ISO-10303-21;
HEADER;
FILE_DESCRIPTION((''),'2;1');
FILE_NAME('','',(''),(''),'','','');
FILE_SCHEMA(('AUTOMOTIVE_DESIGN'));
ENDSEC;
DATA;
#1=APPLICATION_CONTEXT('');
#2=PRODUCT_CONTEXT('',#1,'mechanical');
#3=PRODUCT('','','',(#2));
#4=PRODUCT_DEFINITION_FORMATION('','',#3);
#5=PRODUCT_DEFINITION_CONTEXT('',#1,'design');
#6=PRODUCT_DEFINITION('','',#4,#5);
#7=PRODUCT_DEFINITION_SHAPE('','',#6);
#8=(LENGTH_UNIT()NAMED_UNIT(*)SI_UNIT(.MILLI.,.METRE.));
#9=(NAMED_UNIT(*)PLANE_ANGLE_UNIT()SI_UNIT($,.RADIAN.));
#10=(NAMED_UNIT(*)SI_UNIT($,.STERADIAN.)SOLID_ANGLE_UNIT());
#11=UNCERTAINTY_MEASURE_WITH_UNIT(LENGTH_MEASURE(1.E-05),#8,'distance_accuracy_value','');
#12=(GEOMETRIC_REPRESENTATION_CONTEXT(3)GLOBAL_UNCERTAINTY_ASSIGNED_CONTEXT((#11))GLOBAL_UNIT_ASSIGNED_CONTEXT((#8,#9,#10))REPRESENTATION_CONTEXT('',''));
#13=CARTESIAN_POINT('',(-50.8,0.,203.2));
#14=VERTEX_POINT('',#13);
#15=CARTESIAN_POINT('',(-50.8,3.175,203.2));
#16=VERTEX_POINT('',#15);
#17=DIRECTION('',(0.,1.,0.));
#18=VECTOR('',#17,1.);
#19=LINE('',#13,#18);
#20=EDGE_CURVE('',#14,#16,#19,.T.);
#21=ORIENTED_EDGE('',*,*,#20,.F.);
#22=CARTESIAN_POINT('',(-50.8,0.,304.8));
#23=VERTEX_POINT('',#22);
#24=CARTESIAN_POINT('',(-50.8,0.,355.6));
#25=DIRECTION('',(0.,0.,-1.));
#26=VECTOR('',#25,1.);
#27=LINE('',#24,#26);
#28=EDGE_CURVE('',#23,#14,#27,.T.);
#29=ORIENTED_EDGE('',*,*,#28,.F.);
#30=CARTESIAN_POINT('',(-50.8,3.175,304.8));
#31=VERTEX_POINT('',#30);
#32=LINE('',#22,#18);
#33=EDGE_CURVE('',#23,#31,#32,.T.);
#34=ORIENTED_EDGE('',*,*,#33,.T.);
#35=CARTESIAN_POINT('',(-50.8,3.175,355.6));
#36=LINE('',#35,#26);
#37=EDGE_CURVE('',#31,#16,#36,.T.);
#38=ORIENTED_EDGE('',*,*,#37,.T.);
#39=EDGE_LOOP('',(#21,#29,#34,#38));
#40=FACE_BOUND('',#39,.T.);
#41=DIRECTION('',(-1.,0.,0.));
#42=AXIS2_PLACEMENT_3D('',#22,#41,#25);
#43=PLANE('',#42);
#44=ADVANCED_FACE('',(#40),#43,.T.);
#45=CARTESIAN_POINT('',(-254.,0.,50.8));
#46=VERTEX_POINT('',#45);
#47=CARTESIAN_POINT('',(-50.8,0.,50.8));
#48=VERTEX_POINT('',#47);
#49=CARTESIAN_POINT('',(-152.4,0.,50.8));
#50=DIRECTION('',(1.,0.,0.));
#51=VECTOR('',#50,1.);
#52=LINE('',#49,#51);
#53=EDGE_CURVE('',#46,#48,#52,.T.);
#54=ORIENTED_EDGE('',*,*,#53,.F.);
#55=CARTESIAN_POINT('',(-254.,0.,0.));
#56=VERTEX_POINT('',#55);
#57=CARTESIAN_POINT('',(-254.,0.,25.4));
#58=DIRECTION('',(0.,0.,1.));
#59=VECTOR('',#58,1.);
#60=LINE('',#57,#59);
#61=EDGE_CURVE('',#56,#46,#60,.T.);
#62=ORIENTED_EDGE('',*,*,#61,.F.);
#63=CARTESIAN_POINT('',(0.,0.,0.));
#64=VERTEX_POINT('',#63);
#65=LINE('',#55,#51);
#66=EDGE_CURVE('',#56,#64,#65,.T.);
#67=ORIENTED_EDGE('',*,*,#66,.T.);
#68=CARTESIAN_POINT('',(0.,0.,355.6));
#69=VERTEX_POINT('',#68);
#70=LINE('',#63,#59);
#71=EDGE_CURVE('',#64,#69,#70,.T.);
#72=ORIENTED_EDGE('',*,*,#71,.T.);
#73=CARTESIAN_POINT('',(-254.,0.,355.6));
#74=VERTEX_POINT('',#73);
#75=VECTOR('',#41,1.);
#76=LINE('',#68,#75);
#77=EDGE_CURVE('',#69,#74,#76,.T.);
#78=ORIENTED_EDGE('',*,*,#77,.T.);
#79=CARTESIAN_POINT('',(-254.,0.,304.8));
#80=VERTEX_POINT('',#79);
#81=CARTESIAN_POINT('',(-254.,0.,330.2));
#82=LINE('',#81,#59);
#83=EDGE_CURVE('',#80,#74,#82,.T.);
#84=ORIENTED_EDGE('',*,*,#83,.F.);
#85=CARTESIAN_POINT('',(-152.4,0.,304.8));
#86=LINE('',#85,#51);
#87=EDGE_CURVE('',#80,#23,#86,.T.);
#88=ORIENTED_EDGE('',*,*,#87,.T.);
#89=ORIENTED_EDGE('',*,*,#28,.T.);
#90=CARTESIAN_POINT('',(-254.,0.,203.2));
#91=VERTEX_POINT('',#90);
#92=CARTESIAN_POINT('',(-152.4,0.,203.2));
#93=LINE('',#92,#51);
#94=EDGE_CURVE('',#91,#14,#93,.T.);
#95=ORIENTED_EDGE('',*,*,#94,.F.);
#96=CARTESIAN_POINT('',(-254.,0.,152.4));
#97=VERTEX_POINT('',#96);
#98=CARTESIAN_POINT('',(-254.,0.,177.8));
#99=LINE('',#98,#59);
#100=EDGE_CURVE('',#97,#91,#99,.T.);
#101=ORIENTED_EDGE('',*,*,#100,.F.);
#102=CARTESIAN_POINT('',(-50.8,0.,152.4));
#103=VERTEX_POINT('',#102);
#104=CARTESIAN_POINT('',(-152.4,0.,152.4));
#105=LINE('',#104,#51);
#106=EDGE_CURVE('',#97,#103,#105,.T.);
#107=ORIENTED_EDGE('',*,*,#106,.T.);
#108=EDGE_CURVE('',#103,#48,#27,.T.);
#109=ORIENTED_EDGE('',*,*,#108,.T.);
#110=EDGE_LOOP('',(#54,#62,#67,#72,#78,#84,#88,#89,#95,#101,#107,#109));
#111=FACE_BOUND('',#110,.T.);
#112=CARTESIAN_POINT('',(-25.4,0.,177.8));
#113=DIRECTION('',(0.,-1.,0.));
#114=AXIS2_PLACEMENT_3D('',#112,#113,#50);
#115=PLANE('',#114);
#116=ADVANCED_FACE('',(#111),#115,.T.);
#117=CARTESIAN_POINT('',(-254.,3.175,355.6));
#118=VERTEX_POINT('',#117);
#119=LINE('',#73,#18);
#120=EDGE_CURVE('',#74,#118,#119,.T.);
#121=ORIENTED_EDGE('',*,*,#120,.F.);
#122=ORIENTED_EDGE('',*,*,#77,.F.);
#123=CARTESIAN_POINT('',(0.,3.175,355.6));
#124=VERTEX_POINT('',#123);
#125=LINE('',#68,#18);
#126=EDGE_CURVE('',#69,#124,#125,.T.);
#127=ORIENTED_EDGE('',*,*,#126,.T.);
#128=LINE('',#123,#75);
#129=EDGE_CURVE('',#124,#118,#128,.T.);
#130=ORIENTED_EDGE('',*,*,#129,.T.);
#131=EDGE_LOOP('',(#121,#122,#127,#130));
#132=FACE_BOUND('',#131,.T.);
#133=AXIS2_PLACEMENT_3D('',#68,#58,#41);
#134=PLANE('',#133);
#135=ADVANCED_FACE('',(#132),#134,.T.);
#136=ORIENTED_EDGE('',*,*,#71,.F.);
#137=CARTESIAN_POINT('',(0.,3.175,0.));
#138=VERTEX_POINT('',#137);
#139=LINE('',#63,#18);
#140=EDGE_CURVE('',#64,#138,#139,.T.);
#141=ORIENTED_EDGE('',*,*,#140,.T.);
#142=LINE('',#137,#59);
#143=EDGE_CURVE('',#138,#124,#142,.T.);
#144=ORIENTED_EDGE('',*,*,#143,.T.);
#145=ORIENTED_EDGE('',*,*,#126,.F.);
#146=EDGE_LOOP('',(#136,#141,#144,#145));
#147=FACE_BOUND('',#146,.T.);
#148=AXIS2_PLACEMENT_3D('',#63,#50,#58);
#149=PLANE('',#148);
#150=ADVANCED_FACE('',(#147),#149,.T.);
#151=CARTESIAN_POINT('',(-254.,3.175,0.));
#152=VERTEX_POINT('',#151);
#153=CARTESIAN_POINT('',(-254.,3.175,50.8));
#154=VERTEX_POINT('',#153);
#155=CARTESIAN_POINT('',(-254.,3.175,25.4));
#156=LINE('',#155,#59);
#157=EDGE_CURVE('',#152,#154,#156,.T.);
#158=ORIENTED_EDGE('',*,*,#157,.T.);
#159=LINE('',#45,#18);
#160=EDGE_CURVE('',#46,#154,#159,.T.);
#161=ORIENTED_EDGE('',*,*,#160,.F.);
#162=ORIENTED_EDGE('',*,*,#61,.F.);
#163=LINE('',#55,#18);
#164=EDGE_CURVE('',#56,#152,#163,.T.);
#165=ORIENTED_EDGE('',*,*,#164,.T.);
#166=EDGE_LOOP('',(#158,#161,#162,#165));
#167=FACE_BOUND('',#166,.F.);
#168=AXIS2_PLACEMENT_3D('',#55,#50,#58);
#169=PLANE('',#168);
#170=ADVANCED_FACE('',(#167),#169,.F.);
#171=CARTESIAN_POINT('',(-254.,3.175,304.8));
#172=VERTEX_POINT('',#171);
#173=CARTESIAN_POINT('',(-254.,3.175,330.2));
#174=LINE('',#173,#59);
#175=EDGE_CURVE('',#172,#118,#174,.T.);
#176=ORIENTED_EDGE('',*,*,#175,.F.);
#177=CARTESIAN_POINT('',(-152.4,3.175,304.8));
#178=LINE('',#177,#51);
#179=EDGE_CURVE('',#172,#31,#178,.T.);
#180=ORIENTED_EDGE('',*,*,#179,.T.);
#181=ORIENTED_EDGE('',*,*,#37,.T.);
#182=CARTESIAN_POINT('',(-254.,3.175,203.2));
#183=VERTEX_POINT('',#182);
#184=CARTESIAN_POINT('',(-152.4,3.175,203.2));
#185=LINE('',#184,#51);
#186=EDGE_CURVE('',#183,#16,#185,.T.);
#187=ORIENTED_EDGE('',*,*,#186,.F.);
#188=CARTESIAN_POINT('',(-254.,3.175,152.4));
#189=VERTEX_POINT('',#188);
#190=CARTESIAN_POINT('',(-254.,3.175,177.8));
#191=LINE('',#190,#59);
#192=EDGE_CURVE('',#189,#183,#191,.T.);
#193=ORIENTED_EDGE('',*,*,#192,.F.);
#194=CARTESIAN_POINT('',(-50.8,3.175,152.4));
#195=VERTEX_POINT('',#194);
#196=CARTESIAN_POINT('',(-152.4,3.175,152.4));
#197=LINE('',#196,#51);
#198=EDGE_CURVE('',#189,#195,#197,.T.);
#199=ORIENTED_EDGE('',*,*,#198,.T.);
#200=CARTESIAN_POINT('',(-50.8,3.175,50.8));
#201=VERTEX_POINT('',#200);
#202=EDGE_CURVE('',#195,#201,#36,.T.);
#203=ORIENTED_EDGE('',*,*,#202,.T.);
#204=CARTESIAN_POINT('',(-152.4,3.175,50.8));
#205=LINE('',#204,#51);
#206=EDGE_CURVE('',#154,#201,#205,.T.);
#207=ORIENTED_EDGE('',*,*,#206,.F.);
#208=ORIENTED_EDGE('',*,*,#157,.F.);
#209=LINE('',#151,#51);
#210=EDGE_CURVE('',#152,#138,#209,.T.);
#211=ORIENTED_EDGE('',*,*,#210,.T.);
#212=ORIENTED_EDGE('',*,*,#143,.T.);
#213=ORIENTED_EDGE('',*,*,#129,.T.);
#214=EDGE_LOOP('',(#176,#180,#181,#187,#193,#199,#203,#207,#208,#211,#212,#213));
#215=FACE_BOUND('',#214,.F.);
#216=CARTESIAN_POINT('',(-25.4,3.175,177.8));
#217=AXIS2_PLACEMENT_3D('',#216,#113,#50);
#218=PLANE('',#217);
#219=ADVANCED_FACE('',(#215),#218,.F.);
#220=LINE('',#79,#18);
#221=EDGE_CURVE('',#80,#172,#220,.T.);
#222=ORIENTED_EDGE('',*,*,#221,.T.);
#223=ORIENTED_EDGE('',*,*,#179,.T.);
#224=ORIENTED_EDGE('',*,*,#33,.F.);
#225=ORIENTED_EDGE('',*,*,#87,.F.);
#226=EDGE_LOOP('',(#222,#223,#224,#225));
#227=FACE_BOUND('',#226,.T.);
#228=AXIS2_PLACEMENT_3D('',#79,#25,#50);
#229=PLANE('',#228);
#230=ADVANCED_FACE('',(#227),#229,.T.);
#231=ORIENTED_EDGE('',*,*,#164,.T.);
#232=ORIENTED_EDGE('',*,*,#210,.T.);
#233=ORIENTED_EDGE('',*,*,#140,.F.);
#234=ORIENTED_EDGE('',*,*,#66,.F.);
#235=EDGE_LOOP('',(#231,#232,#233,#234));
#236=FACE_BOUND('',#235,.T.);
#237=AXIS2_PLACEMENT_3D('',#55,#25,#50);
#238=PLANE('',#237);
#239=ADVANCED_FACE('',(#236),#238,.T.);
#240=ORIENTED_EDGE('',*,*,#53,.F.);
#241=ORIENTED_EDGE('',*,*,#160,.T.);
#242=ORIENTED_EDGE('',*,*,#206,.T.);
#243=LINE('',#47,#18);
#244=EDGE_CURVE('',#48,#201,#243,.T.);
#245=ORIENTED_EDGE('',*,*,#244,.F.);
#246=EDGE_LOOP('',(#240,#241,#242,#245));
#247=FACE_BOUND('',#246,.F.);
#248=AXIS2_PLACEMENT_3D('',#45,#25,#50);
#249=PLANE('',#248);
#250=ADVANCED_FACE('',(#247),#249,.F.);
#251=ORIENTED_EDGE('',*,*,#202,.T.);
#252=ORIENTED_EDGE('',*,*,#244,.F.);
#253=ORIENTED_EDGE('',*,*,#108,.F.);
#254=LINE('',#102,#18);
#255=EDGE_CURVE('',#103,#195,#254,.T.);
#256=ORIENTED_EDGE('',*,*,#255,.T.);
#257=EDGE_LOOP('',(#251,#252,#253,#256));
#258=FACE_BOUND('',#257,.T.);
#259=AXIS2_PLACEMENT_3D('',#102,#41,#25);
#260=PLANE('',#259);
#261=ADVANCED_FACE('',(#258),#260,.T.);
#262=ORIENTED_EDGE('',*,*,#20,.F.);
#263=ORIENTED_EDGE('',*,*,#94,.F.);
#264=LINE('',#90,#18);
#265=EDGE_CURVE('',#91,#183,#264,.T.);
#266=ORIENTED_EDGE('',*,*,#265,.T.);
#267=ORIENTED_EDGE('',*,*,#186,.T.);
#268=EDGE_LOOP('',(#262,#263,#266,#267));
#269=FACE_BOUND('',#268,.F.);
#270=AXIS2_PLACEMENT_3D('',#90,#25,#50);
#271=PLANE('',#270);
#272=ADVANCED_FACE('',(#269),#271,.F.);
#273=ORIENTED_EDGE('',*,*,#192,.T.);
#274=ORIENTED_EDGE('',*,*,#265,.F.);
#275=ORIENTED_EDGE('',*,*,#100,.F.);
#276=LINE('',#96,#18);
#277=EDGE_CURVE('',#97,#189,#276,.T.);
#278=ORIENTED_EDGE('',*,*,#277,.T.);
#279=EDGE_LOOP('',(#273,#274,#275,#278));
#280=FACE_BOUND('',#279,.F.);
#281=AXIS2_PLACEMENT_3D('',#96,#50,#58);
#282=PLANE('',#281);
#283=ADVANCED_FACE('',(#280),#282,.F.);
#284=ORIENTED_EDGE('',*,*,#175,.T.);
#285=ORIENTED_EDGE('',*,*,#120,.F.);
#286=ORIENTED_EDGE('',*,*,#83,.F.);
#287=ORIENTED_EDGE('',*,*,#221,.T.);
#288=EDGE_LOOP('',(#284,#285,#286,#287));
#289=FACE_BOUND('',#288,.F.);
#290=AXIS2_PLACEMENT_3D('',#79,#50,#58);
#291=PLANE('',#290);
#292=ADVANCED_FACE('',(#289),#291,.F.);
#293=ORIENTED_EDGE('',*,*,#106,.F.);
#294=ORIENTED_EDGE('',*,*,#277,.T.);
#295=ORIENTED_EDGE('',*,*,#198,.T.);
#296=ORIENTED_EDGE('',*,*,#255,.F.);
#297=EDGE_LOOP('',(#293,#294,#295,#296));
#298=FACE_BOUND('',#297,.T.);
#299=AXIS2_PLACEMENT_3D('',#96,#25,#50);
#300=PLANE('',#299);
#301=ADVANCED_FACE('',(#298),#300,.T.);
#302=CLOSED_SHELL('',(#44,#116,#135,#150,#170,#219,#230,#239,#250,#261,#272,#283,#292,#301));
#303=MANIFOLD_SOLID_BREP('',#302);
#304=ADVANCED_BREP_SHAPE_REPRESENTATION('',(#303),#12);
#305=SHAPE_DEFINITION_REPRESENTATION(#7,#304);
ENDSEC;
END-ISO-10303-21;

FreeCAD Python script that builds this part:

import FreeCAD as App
import Part
import Sketcher
Q = App.Units.Quantity


def add_polygon(sketch, points):
    """Adds a closed chain of lines whose ends are joined by coincident constraints."""
    first, n = sketch.GeometryCount, len(points)
    for a, b in zip(points, points[1:] + points[:1]):
        sketch.addGeometry(Part.LineSegment(App.Vector(*a, 0), App.Vector(*b, 0)), False)
    for i in range(n):
        sketch.addConstraint(Sketcher.Constraint("Coincident", first + i, 2, first + (i + 1) % n, 1))

doc = App.newDocument("Part")
body = doc.addObject("PartDesign::Body", "Body")

# Sketch on XZ plane
sketch1 = body.newObject("Sketcher::SketchObject", "Sketch")
sketch1.AttachmentSupport = (doc.getObject("XZ_Plane"), [""])
sketch1.MapMode = "FlatFace"
add_polygon(sketch1, [(0, 0), (0, 356), (-254, 356), (-254, 305), (-51, 305), (-51, 203), (-254, 203), (-254, 152), (-51, 152), (-51, 51), (-254, 51), (-254, 0)])  # lines 0-11
sketch1.addConstraint([
    Sketcher.Constraint("Vertical", 0),
    Sketcher.Constraint("Horizontal", 1),
    Sketcher.Constraint("Vertical", 2),
    Sketcher.Constraint("Horizontal", 3),
    Sketcher.Constraint("Vertical", 4),
    Sketcher.Constraint("Horizontal", 5),
    Sketcher.Constraint("Vertical", 6),
    Sketcher.Constraint("Horizontal", 7),
    Sketcher.Constraint("Vertical", 8),
    Sketcher.Constraint("Horizontal", 9),
    Sketcher.Constraint("Vertical", 10),
    Sketcher.Constraint("Horizontal", 11),
    Sketcher.Constraint("Coincident", 11, 2, -1, 1),
    Sketcher.Constraint("Vertical", 2, 2, 5, 2),
    Sketcher.Constraint("Vertical", 4, 2, 7, 2),
    Sketcher.Constraint("Vertical", 6, 2, 9, 2),
    Sketcher.Constraint("Equal", 2, 6),
    Sketcher.Constraint("Equal", 4, 8),
    Sketcher.Constraint("Equal", 6, 10),
    Sketcher.Constraint("DistanceX", 1, 2, 1, 1, Q("10 in")),
    Sketcher.Constraint("DistanceX", 3, 1, 3, 2, Q("8 in")),
    Sketcher.Constraint("DistanceY", 0, 1, 0, 2, Q("14 in")),
    Sketcher.Constraint("DistanceY", 2, 2, 2, 1, Q("2 in")),
])
pad1 = body.newObject("PartDesign::Pad", "Pad")
pad1.Profile = sketch1
pad1.Length = Q("0.125 in")
pad1.Reversed = True

doc.recompute()
